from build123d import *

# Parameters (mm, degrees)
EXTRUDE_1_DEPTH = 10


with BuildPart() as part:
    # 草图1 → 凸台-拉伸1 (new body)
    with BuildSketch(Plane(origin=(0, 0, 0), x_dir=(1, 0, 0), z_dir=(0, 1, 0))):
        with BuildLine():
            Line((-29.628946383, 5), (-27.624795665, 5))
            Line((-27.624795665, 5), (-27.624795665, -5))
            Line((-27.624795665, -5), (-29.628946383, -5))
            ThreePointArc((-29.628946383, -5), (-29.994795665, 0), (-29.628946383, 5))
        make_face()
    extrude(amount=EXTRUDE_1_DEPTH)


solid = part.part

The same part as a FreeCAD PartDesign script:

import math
import FreeCAD as App
import Part
import Sketcher

doc = App.newDocument("Part")
body = doc.addObject("PartDesign::Body", "Body")

sketch1 = body.newObject("Sketcher::SketchObject", "Sketch")
sketch1.AttachmentSupport = (doc.getObject("XZ_Plane"), [""])
sketch1.MapMode = "FlatFace"
sketch1.addGeometry(Part.LineSegment(App.Vector(-27.6, -5, 0), App.Vector(-29.6, -5, 0)), False)
sketch1.addGeometry(Part.ArcOfCircle(Part.Circle(App.Vector(4.4, 0, 0), App.Vector(0, 0, 1), 34.4), math.radians(171.63), math.radians(188.37)), False)
sketch1.addGeometry(Part.LineSegment(App.Vector(-29.6, 5, 0), App.Vector(-27.6, 5, 0)), False)
sketch1.addGeometry(Part.LineSegment(App.Vector(-27.6, 5, 0), App.Vector(-27.6, -5, 0)), False)
sketch1.addConstraint(Sketcher.Constraint("Coincident", 0, 2, 1, 2))
sketch1.addConstraint(Sketcher.Constraint("Coincident", 1, 1, 2, 1))
sketch1.addConstraint(Sketcher.Constraint("Coincident", 2, 2, 3, 1))
sketch1.addConstraint(Sketcher.Constraint("Coincident", 3, 2, 0, 1))
sketch1.addConstraint(Sketcher.Constraint("Horizontal", 0))
sketch1.addConstraint(Sketcher.Constraint("Horizontal", 2))
sketch1.addConstraint(Sketcher.Constraint("Vertical", 3))
sketch1.addConstraint(Sketcher.Constraint("Symmetric", 0, 2, 1, 1, -1))
sketch1.addConstraint(Sketcher.Constraint("DistanceY", 3, 2, 3, 1, 10.0))
sketch1.addConstraint(Sketcher.Constraint("Radius", 1, 34.35))
sketch1.addConstraint(Sketcher.Constraint("DistanceX", 2, 2, 1, 3, 31.98))
sketch1.addConstraint(Sketcher.Constraint("DistanceX", -1, 1, 1, 3, 4.355204))
pad1 = body.newObject("PartDesign::Pad", "Pad")
pad1.Profile = sketch1
pad1.Length = 10
pad1.Reversed = True

doc.recompute()
